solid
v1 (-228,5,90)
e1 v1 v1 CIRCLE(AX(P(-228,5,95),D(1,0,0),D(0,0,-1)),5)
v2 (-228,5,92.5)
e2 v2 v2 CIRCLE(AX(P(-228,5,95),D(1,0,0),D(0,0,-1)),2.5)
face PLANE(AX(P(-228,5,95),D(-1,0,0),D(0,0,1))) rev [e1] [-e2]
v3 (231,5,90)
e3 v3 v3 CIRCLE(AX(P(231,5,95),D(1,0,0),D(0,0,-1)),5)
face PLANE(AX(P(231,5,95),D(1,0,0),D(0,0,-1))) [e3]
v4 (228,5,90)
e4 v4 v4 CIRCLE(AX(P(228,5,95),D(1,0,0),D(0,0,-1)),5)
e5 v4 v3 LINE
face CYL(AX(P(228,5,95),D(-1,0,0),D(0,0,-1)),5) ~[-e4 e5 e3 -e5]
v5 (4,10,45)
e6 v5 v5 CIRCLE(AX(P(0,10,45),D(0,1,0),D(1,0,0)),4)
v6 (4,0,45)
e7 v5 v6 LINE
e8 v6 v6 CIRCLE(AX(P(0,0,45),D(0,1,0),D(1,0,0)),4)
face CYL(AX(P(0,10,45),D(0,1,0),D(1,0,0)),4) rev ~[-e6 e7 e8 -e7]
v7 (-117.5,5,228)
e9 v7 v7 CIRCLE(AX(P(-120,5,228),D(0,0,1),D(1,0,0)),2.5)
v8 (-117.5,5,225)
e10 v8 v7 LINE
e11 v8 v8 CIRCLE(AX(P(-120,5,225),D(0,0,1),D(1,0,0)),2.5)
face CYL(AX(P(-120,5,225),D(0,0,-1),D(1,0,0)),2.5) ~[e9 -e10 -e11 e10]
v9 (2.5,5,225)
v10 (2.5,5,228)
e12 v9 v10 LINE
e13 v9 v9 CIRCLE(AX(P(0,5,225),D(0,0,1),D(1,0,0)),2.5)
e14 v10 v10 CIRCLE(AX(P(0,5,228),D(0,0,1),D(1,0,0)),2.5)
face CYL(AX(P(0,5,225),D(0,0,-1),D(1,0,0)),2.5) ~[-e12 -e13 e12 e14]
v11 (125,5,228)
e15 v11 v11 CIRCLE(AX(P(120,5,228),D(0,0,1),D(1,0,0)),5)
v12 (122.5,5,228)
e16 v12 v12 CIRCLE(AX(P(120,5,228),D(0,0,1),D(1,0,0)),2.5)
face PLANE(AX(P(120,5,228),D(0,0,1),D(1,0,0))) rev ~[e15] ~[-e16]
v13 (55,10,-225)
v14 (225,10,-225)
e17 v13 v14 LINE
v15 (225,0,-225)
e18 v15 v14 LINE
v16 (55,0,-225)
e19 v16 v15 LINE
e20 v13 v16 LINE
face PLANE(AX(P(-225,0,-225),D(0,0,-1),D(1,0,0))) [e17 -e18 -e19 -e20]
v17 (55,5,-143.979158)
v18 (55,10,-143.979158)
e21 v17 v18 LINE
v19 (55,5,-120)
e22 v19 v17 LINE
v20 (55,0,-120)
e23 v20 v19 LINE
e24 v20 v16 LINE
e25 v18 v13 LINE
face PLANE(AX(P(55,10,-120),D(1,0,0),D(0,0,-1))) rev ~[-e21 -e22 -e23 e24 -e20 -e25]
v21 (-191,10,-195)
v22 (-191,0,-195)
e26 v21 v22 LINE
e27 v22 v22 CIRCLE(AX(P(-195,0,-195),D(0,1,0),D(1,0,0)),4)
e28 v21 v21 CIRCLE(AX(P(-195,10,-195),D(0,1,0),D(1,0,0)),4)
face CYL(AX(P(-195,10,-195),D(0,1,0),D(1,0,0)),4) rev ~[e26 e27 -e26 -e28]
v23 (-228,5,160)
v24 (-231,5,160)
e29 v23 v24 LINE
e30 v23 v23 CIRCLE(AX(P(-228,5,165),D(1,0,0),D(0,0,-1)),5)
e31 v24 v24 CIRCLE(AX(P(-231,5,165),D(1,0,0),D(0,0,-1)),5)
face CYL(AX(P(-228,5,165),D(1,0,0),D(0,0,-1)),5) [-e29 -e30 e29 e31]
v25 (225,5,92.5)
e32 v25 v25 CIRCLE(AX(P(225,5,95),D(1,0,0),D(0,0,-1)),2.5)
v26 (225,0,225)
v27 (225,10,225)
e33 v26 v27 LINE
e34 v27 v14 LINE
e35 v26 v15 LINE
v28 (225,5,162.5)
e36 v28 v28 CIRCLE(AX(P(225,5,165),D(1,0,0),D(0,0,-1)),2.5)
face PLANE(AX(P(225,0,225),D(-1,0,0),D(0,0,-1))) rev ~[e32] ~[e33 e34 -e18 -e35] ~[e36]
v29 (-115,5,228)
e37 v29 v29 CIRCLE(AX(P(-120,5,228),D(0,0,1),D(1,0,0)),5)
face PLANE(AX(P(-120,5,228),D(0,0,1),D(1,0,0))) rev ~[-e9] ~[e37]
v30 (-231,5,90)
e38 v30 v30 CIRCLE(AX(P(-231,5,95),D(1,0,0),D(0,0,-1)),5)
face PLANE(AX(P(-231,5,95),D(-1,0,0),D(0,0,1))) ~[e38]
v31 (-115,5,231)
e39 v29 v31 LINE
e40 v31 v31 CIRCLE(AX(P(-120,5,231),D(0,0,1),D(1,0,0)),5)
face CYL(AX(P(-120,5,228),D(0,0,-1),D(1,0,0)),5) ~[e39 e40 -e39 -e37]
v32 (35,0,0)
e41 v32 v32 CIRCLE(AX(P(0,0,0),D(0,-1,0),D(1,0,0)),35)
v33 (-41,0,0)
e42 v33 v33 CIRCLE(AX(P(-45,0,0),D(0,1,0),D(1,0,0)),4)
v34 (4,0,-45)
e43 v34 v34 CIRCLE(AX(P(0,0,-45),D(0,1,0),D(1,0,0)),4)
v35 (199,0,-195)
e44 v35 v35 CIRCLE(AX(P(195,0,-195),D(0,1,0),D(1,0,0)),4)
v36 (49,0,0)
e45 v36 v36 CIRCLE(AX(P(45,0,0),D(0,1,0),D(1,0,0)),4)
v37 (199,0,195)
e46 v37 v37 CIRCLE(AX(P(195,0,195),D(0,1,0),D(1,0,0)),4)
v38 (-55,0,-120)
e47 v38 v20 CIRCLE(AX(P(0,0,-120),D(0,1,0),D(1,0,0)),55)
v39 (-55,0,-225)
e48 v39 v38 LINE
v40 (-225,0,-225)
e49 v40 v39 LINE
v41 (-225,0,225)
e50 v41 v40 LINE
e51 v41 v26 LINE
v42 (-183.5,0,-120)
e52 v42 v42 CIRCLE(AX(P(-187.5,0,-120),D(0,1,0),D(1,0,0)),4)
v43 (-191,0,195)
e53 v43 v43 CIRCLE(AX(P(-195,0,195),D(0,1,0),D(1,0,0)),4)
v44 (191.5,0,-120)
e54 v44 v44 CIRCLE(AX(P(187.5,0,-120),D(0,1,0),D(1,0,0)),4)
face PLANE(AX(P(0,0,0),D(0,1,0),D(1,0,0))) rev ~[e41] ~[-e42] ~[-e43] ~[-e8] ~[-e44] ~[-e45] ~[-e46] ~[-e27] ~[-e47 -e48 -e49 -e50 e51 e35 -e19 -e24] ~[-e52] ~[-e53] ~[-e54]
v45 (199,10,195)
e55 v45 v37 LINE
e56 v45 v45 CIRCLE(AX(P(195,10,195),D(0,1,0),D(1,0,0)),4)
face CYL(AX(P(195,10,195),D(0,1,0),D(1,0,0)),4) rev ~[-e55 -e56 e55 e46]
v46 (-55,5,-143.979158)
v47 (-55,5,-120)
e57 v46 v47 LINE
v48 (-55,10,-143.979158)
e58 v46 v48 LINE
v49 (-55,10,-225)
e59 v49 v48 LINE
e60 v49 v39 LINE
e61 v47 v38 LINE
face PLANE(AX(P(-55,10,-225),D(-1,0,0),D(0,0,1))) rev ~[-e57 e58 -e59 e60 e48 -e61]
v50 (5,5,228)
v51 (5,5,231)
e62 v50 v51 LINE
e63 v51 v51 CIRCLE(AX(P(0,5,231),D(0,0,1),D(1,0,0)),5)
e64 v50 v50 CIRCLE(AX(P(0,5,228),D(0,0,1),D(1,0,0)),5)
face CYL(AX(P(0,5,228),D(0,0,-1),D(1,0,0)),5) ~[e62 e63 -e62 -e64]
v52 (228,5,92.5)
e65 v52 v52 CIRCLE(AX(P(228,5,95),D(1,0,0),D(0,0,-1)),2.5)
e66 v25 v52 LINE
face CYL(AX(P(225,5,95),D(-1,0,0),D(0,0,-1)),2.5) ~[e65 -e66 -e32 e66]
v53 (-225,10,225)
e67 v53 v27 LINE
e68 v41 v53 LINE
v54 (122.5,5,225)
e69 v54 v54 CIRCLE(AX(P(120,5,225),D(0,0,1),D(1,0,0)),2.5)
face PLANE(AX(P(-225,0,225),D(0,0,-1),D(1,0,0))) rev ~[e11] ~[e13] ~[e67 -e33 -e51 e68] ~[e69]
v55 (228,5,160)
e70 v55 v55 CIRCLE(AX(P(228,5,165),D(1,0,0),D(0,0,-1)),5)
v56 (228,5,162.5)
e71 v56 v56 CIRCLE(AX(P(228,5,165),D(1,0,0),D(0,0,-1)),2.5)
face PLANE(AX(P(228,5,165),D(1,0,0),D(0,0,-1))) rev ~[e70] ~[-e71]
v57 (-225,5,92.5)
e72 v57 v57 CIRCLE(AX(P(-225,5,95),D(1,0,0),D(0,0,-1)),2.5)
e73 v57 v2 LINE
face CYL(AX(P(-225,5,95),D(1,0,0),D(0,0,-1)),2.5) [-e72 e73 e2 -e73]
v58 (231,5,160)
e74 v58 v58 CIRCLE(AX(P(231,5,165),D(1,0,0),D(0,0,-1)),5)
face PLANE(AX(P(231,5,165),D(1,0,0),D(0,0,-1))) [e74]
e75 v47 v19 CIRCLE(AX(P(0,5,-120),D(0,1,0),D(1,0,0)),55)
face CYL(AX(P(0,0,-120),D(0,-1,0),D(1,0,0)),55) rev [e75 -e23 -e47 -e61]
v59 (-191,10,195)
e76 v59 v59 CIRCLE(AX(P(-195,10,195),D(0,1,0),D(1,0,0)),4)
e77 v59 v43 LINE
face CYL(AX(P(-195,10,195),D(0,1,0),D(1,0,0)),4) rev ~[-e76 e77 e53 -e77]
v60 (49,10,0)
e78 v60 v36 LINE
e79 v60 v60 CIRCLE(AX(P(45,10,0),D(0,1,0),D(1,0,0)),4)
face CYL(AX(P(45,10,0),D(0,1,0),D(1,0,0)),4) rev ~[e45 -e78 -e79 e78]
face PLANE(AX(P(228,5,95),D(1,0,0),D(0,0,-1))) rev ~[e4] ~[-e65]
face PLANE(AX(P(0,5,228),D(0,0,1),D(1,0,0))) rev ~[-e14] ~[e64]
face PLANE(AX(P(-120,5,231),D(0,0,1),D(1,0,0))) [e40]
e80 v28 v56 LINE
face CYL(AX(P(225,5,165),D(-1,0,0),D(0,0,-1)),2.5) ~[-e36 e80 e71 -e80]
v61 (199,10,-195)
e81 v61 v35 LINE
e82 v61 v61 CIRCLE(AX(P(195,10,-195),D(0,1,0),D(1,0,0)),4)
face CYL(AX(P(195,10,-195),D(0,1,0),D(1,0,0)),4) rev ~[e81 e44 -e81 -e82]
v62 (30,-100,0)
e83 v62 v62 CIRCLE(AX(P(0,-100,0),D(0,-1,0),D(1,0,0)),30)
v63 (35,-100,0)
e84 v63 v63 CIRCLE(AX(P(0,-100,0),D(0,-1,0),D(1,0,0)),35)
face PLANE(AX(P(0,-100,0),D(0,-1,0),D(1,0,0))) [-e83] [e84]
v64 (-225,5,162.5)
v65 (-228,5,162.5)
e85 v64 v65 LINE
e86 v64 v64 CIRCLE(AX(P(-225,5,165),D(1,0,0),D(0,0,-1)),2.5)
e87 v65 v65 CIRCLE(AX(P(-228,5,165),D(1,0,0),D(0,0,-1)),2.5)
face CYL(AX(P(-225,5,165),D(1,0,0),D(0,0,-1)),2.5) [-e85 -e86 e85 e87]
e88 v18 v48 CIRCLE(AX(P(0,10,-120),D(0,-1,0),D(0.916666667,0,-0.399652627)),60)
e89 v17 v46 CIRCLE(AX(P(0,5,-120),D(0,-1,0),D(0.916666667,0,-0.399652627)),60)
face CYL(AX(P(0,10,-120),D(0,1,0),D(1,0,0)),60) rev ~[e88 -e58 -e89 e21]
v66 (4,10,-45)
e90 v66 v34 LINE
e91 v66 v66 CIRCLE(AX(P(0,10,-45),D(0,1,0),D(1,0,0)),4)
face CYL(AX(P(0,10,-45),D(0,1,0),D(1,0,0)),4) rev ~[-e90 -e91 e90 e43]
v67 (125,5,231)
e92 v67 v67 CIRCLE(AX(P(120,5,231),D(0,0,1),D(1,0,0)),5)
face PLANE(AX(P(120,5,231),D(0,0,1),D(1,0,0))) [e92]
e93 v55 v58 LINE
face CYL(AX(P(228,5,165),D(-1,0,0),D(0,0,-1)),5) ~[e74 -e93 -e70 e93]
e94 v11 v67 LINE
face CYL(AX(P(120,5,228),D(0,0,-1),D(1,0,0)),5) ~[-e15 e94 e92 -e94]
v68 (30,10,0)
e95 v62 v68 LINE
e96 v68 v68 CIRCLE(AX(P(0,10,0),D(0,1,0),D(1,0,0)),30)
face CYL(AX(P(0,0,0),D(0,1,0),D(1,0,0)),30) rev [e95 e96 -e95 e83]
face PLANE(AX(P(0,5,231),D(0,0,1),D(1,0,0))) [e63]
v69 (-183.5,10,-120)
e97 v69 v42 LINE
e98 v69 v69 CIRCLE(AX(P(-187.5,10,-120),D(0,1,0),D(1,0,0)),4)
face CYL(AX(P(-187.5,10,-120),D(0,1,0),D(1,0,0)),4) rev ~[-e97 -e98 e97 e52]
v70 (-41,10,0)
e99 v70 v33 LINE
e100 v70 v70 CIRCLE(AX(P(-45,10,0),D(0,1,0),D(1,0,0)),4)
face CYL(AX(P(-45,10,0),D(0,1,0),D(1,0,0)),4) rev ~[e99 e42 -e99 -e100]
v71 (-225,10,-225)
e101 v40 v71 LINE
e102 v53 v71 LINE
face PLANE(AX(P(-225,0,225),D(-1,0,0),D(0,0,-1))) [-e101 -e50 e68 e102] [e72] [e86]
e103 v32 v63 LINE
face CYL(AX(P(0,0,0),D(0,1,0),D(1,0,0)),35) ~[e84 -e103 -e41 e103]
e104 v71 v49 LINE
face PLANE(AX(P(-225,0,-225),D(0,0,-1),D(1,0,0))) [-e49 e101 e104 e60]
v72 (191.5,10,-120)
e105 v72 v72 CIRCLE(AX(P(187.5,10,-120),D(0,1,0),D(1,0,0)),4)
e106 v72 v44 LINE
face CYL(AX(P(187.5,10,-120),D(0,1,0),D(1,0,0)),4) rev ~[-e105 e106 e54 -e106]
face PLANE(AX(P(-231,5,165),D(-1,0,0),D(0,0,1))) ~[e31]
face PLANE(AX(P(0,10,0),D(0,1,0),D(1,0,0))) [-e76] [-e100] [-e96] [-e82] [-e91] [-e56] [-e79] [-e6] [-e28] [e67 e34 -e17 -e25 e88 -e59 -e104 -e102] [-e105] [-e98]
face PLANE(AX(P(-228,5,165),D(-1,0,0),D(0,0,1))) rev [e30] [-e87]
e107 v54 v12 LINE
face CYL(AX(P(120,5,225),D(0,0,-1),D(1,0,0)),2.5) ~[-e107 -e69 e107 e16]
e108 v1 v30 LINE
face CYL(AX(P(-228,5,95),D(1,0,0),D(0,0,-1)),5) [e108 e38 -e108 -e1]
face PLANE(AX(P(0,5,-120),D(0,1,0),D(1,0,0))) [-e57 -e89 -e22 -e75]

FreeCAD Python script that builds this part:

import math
import FreeCAD as App
import Part
import Sketcher

V = App.Vector
Q = App.Units.Quantity


def add_polygon(sketch, points):
    """Adds a closed chain of lines whose ends are joined by coincident constraints."""
    first, n = sketch.GeometryCount, len(points)
    for a, b in zip(points, points[1:] + points[:1]):
        sketch.addGeometry(Part.LineSegment(App.Vector(*a, 0), App.Vector(*b, 0)), False)
    for i in range(n):
        sketch.addConstraint(Sketcher.Constraint("Coincident", first + i, 2, first + (i + 1) % n, 1))

doc = App.newDocument("Part")
body = doc.addObject("PartDesign::Body", "Body")

# Sketch on XZ plane
sketch1 = body.newObject("Sketcher::SketchObject", "Sketch")
sketch1.AttachmentSupport = (doc.getObject("XZ_Plane"), [""])
sketch1.MapMode = "FlatFace"
add_polygon(sketch1, [(-225, -225), (-225, 225), (225, 225), (225, -225)])  # lines 0-3
sketch1.addGeometry(Part.Circle(V(0, 0, 0), V(0, 0, 1), 30), False)  # 4
sketch1.addGeometry(Part.Circle(V(0, -120, 0), V(0, 0, 1), 55), False)  # 5
sketch1.addConstraint([
    Sketcher.Constraint("Vertical", 0),
    Sketcher.Constraint("Horizontal", 1),
    Sketcher.Constraint("Vertical", 2),
    Sketcher.Constraint("Horizontal", 3),
    Sketcher.Constraint("Coincident", 4, 3, -1, 1),
    Sketcher.Constraint("Symmetric", 0, 2, 2, 2, -1, 1),
    Sketcher.Constraint("PointOnObject", 5, 3, -2),
    Sketcher.Constraint("Equal", 3, 0),
    Sketcher.Constraint("Diameter", 4, Q("60 mm")),
    Sketcher.Constraint("Diameter", 5, Q("110 mm")),
    Sketcher.Constraint("DistanceX", 1, 1, 1, 2, Q("450 mm")),
    Sketcher.Constraint("DistanceY", 5, 3, -1, 1, Q("120 mm")),
])
pad1 = body.newObject("PartDesign::Pad", "Pad")
pad1.Profile = sketch1
pad1.Length = 10
pad1.Reversed = True

# Sketch on XZ plane
sketch2 = body.newObject("Sketcher::SketchObject", "Sketch001")
sketch2.AttachmentSupport = (doc.getObject("XZ_Plane"), [""])
sketch2.MapMode = "FlatFace"
sketch2.AttachmentOffset = App.Placement(V(0, 0, -10), App.Rotation())
sketch2.addGeometry([
    Part.Circle(V(-195, -195, 0), V(0, 0, 1), 4),  # 0
    Part.Circle(V(195, -195, 0), V(0, 0, 1), 4),  # 1
    Part.Circle(V(195, 195, 0), V(0, 0, 1), 4),  # 2
    Part.Circle(V(-195, 195, 0), V(0, 0, 1), 4),  # 3
    Part.Circle(V(-45, 0, 0), V(0, 0, 1), 4),  # 4
    Part.Circle(V(0, -45, 0), V(0, 0, 1), 4),  # 5
    Part.Circle(V(0, 45, 0), V(0, 0, 1), 4),  # 6
    Part.Circle(V(45, 0, 0), V(0, 0, 1), 4),  # 7
    Part.Circle(V(-187.5, -120, 0), V(0, 0, 1), 4),  # 8
    Part.Circle(V(187.5, -120, 0), V(0, 0, 1), 4),  # 9
], False)
sketch2.addConstraint([
    Sketcher.Constraint("Equal", 0, 1),
    Sketcher.Constraint("Equal", 1, 2),
    Sketcher.Constraint("Equal", 2, 3),
    Sketcher.Constraint("Equal", 3, 4),
    Sketcher.Constraint("Equal", 4, 5),
    Sketcher.Constraint("Equal", 5, 6),
    Sketcher.Constraint("Equal", 6, 7),
    Sketcher.Constraint("Equal", 7, 8),
    Sketcher.Constraint("Equal", 8, 9),
    Sketcher.Constraint("Symmetric", 0, 3, 2, 3, -1, 1),
    Sketcher.Constraint("Symmetric", 1, 3, 3, 3, -1, 1),
    Sketcher.Constraint("Symmetric", 5, 3, 6, 3, -1, 1),
    Sketcher.Constraint("Symmetric", 4, 3, 7, 3, -1, 1),
    Sketcher.Constraint("Symmetric", 0, 3, 1, 3, -2),
    Sketcher.Constraint("Symmetric", 8, 3, 9, 3, -2),
    Sketcher.Constraint("PointOnObject", 4, 3, -1),
    Sketcher.Constraint("PointOnObject", 5, 3, -2),
    Sketcher.Constraint("Diameter", 0, Q("8 mm")),
    Sketcher.Constraint("DistanceX", 0, 3, -1, 1, Q("195 mm")),
    Sketcher.Constraint("DistanceY", 0, 3, -1, 1, Q("195 mm")),
    Sketcher.Constraint("DistanceX", 4, 3, -1, 1, Q("45 mm")),
    Sketcher.Constraint("DistanceY", 5, 3, -1, 1, Q("45 mm")),
    Sketcher.Constraint("DistanceY", 8, 3, -1, 1, Q("120 mm")),
    Sketcher.Constraint("DistanceX", 8, 3, -1, 1, Q("187.5 mm")),
])
pocket1 = body.newObject("PartDesign::Pocket", "Pocket")
pocket1.Profile = sketch2
pocket1.Type = "ThroughAll"
pocket1.Reversed = True

# Sketch on XZ plane
sketch3 = body.newObject("Sketcher::SketchObject", "Sketch002")
sketch3.AttachmentSupport = (doc.getObject("XZ_Plane"), [""])
sketch3.MapMode = "FlatFace"
sketch3.AttachmentOffset = App.Placement(V(0, 0, -10), App.Rotation())
sketch3.addGeometry([
    Part.Circle(V(0, -120, 0), V(0, 0, 1), 60),
    Part.Circle(V(0, -120, 0), V(0, 0, 1), 55),
], False)
sketch3.addConstraint([
    Sketcher.Constraint("Coincident", 1, 3, 0, 3),
    Sketcher.Constraint("PointOnObject", 0, 3, -2),
    Sketcher.Constraint("Diameter", 0, Q("120 mm")),
    Sketcher.Constraint("Diameter", 1, Q("110 mm")),
    Sketcher.Constraint("DistanceY", 0, 3, -1, 1, Q("120 mm")),
])
pocket2 = body.newObject("PartDesign::Pocket", "Pocket001")
pocket2.Profile = sketch3
pocket2.Length = 5
pocket2.Reversed = True

# Sketch on XZ plane
sketch4 = body.newObject("Sketcher::SketchObject", "Sketch003")
sketch4.AttachmentSupport = (doc.getObject("XZ_Plane"), [""])
sketch4.MapMode = "FlatFace"
sketch4.AttachmentOffset = App.Placement(V(0, 0, -10), App.Rotation())
sketch4.addGeometry([
    Part.ArcOfCircle(Part.Circle(V(0, -120, 0), V(0, 0, 1), 55), math.radians(0), math.radians(180)),
    Part.LineSegment(V(55, -120, 0), V(55, -225, 0)),
    Part.LineSegment(V(55, -225, 0), V(-55, -225, 0)),
    Part.LineSegment(V(-55, -225, 0), V(-55, -120, 0)),
], False)
sketch4.addConstraint([
    Sketcher.Constraint("Tangent", 0, 1, 1, 1),
    Sketcher.Constraint("Coincident", 1, 2, 2, 1),
    Sketcher.Constraint("Coincident", 2, 2, 3, 1),
    Sketcher.Constraint("Tangent", 3, 2, 0, 2),
    Sketcher.Constraint("Vertical", 1),
    Sketcher.Constraint("Horizontal", 2),
    Sketcher.Constraint("Vertical", 3),
    Sketcher.Constraint("PointOnObject", 0, 3, -2),
    Sketcher.Constraint("Radius", 0, Q("55 mm")),
    Sketcher.Constraint("DistanceY", 1, 2, 1, 1, Q("105 mm")),
    Sketcher.Constraint("DistanceY", 0, 3, -1, 1, Q("120 mm")),
])
pocket3 = body.newObject("PartDesign::Pocket", "Pocket002")
pocket3.Profile = sketch4
pocket3.Type = "ThroughAll"
pocket3.Reversed = True

# Sketch on XZ plane
sketch5 = body.newObject("Sketcher::SketchObject", "Sketch004")
sketch5.AttachmentSupport = (doc.getObject("XZ_Plane"), [""])
sketch5.MapMode = "FlatFace"
sketch5.addGeometry([
    Part.Circle(V(0, 0, 0), V(0, 0, 1), 35),
    Part.Circle(V(0, 0, 0), V(0, 0, 1), 30),
], False)
sketch5.addConstraint([
    Sketcher.Constraint("Coincident", 0, 3, -1, 1),
    Sketcher.Constraint("Coincident", 1, 3, -1, 1),
    Sketcher.Constraint("Diameter", 0, Q("70 mm")),
    Sketcher.Constraint("Diameter", 1, Q("60 mm")),
])
pad2 = body.newObject("PartDesign::Pad", "Pad001")
pad2.Profile = sketch5
pad2.Length = 100

# Sketch on YZ plane
sketch6 = body.newObject("Sketcher::SketchObject", "Sketch005")
sketch6.AttachmentSupport = (doc.getObject("YZ_Plane"), [""])
sketch6.MapMode = "FlatFace"
sketch6.AttachmentOffset = App.Placement(V(0, 0, 225), App.Rotation())
sketch6.addGeometry([
    Part.Circle(V(5, 165, 0), V(0, 0, 1), 2.5),
    Part.Circle(V(5, 95, 0), V(0, 0, 1), 2.5),
], False)
sketch6.addConstraint([
    Sketcher.Constraint("Equal", 0, 1),
    Sketcher.Constraint("Vertical", 0, 3, 1, 3),
    Sketcher.Constraint("Diameter", 0, Q("5 mm")),
    Sketcher.Constraint("DistanceX", -1, 1, 0, 3, Q("5 mm")),
    Sketcher.Constraint("DistanceY", -1, 1, 0, 3, Q("165 mm")),
    Sketcher.Constraint("DistanceY", -1, 1, 1, 3, Q("95 mm")),
])
pad3 = body.newObject("PartDesign::Pad", "Pad002")
pad3.Profile = sketch6
pad3.Length = 3

# Sketch on YZ plane
sketch7 = body.newObject("Sketcher::SketchObject", "Sketch006")
sketch7.AttachmentSupport = (doc.getObject("YZ_Plane"), [""])
sketch7.MapMode = "FlatFace"
sketch7.AttachmentOffset = App.Placement(V(0, 0, 228), App.Rotation())
sketch7.addGeometry([
    Part.Circle(V(5, 165, 0), V(0, 0, 1), 5),
    Part.Circle(V(5, 95, 0), V(0, 0, 1), 5),
], False)
sketch7.addConstraint([
    Sketcher.Constraint("Equal", 0, 1),
    Sketcher.Constraint("Vertical", 0, 3, 1, 3),
    Sketcher.Constraint("Diameter", 0, Q("10 mm")),
    Sketcher.Constraint("DistanceX", -1, 1, 0, 3, Q("5 mm")),
    Sketcher.Constraint("DistanceY", -1, 1, 0, 3, Q("165 mm")),
    Sketcher.Constraint("DistanceY", -1, 1, 1, 3, Q("95 mm")),
])
pad4 = body.newObject("PartDesign::Pad", "Pad003")
pad4.Profile = sketch7
pad4.Length = 3
doc.recompute()

mirrored = body.newObject("PartDesign::Mirrored", "Mirrored")
mirrored.Originals = [pad3, pad4]
mirrored.MirrorPlane = (doc.getObject("YZ_Plane"), [""])
body.Tip = mirrored

# Sketch on XY plane
sketch8 = body.newObject("Sketcher::SketchObject", "Sketch007")
sketch8.AttachmentSupport = (doc.getObject("XY_Plane"), [""])
sketch8.MapMode = "FlatFace"
sketch8.AttachmentOffset = App.Placement(V(0, 0, 225), App.Rotation())
sketch8.addGeometry([
    Part.Circle(V(-120, 5, 0), V(0, 0, 1), 2.5),
    Part.Circle(V(0, 5, 0), V(0, 0, 1), 2.5),
    Part.Circle(V(120, 5, 0), V(0, 0, 1), 2.5),
], False)
sketch8.addConstraint([
    Sketcher.Constraint("Equal", 0, 1),
    Sketcher.Constraint("Equal", 1, 2),
    Sketcher.Constraint("Symmetric", 0, 3, 2, 3, -2),
    Sketcher.Constraint("PointOnObject", 1, 3, -2),
    Sketcher.Constraint("Horizontal", 0, 3, 1, 3),
    Sketcher.Constraint("Diameter", 0, Q("5 mm")),
    Sketcher.Constraint("DistanceX", 0, 3, -1, 1, Q("120 mm")),
    Sketcher.Constraint("DistanceY", -1, 1, 0, 3, Q("5 mm")),
])
pad5 = body.newObject("PartDesign::Pad", "Pad004")
pad5.Profile = sketch8
pad5.Length = 3

# Sketch on XY plane
sketch9 = body.newObject("Sketcher::SketchObject", "Sketch008")
sketch9.AttachmentSupport = (doc.getObject("XY_Plane"), [""])
sketch9.MapMode = "FlatFace"
sketch9.AttachmentOffset = App.Placement(V(0, 0, 228), App.Rotation())
sketch9.addGeometry([
    Part.Circle(V(-120, 5, 0), V(0, 0, 1), 5),
    Part.Circle(V(0, 5, 0), V(0, 0, 1), 5),
    Part.Circle(V(120, 5, 0), V(0, 0, 1), 5),
], False)
sketch9.addConstraint([
    Sketcher.Constraint("Equal", 0, 1),
    Sketcher.Constraint("Equal", 1, 2),
    Sketcher.Constraint("Symmetric", 0, 3, 2, 3, -2),
    Sketcher.Constraint("PointOnObject", 1, 3, -2),
    Sketcher.Constraint("Horizontal", 0, 3, 1, 3),
    Sketcher.Constraint("Diameter", 0, Q("10 mm")),
    Sketcher.Constraint("DistanceX", 0, 3, -1, 1, Q("120 mm")),
    Sketcher.Constraint("DistanceY", -1, 1, 0, 3, Q("5 mm")),
])
pad6 = body.newObject("PartDesign::Pad", "Pad005")
pad6.Profile = sketch9
pad6.Length = 3

doc.recompute()
